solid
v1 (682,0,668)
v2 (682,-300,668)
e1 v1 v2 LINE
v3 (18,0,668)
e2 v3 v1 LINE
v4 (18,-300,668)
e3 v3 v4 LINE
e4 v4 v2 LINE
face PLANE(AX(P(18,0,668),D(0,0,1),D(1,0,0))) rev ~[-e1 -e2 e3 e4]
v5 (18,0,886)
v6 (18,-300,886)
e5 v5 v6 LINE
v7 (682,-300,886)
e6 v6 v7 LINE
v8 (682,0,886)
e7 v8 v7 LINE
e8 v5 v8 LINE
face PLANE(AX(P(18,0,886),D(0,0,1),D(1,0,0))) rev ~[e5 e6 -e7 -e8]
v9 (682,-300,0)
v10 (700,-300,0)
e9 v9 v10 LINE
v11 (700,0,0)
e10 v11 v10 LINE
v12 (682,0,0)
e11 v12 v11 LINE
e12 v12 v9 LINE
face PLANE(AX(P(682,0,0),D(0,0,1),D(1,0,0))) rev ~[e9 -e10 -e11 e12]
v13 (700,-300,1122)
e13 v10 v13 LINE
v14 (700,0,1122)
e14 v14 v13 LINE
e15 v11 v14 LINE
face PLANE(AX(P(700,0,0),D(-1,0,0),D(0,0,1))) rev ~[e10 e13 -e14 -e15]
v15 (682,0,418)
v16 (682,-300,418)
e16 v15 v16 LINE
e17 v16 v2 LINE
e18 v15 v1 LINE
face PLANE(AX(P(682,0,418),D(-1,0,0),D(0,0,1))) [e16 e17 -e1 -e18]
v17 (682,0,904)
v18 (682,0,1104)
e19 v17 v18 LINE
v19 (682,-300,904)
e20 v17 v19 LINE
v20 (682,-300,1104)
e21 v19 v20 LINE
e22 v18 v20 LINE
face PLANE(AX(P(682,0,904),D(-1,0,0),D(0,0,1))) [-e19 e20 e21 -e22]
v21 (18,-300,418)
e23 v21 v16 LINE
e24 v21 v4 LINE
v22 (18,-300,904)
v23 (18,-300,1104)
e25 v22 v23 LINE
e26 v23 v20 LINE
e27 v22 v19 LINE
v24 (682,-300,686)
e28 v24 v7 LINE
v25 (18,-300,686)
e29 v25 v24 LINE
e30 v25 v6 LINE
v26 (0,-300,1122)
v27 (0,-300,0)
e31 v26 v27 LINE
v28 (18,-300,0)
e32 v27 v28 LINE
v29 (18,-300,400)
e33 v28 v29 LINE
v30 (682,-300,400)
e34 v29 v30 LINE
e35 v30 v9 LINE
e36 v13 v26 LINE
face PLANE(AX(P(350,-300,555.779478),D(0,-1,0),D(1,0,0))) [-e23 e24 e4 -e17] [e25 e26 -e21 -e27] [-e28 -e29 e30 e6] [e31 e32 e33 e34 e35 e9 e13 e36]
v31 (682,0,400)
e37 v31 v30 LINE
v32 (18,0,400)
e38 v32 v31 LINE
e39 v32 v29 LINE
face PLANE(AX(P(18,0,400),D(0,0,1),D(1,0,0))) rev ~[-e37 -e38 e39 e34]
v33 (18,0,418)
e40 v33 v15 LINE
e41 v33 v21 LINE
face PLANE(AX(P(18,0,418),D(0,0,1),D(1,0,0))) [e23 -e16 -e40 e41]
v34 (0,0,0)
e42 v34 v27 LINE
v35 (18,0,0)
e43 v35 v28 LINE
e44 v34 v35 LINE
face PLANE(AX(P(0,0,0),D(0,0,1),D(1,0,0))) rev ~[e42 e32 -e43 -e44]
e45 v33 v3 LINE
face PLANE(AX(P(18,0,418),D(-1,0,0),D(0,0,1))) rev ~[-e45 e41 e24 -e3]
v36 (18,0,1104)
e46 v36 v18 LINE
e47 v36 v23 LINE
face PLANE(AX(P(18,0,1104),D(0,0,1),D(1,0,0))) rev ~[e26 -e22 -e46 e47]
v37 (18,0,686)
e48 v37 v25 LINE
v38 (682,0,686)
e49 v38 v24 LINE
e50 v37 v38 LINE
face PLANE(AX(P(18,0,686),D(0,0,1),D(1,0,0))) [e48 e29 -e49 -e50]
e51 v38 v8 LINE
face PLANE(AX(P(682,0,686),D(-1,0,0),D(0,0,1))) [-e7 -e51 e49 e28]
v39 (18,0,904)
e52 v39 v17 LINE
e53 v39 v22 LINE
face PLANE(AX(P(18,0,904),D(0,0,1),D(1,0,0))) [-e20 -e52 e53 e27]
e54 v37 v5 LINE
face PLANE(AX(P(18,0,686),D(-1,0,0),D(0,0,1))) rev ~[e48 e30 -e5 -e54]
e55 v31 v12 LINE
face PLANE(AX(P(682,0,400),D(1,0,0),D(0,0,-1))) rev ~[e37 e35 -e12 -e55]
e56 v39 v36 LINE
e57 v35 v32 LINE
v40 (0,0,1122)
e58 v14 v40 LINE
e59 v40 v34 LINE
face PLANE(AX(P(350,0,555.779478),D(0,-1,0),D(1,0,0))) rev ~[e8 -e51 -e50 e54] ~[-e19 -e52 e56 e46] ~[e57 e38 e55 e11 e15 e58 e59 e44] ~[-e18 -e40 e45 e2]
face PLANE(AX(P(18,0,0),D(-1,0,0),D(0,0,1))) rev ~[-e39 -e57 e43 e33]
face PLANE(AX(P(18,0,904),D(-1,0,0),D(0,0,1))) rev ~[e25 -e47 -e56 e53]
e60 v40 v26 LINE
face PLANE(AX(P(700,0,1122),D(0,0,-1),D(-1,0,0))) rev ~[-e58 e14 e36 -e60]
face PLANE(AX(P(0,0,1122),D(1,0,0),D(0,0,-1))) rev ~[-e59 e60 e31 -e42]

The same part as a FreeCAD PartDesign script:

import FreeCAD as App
import Part
import Sketcher

doc = App.newDocument("Part")
body = doc.addObject("PartDesign::Body", "Body")

sketch1 = body.newObject("Sketcher::SketchObject", "Sketch")
sketch1.AttachmentSupport = (doc.getObject("XZ_Plane"), [""])
sketch1.MapMode = "FlatFace"
sketch1.addGeometry(Part.LineSegment(App.Vector(0, 1122, 0), App.Vector(0, 0, 0)), False)
sketch1.addGeometry(Part.LineSegment(App.Vector(0, 0, 0), App.Vector(18, 0, 0)), False)
sketch1.addGeometry(Part.LineSegment(App.Vector(18, 0, 0), App.Vector(18, 400, 0)), False)
sketch1.addGeometry(Part.LineSegment(App.Vector(18, 400, 0), App.Vector(682, 400, 0)), False)
sketch1.addGeometry(Part.LineSegment(App.Vector(682, 400, 0), App.Vector(682, 0, 0)), False)
sketch1.addGeometry(Part.LineSegment(App.Vector(682, 0, 0), App.Vector(700, 0, 0)), False)
sketch1.addGeometry(Part.LineSegment(App.Vector(700, 0, 0), App.Vector(700, 1122, 0)), False)
sketch1.addGeometry(Part.LineSegment(App.Vector(700, 1122, 0), App.Vector(0, 1122, 0)), False)
sketch1.addGeometry(Part.LineSegment(App.Vector(682, 418, 0), App.Vector(18, 418, 0)), False)
sketch1.addGeometry(Part.LineSegment(App.Vector(18, 418, 0), App.Vector(18, 668, 0)), False)
sketch1.addGeometry(Part.LineSegment(App.Vector(18, 668, 0), App.Vector(682, 668, 0)), False)
sketch1.addGeometry(Part.LineSegment(App.Vector(682, 668, 0), App.Vector(682, 418, 0)), False)
sketch1.addGeometry(Part.LineSegment(App.Vector(682, 686, 0), App.Vector(18, 686, 0)), False)
sketch1.addGeometry(Part.LineSegment(App.Vector(18, 686, 0), App.Vector(18, 886, 0)), False)
sketch1.addGeometry(Part.LineSegment(App.Vector(18, 886, 0), App.Vector(682, 886, 0)), False)
sketch1.addGeometry(Part.LineSegment(App.Vector(682, 886, 0), App.Vector(682, 686, 0)), False)
sketch1.addGeometry(Part.LineSegment(App.Vector(682, 904, 0), App.Vector(18, 904, 0)), False)
sketch1.addGeometry(Part.LineSegment(App.Vector(18, 904, 0), App.Vector(18, 1104, 0)), False)
sketch1.addGeometry(Part.LineSegment(App.Vector(18, 1104, 0), App.Vector(682, 1104, 0)), False)
sketch1.addGeometry(Part.LineSegment(App.Vector(682, 1104, 0), App.Vector(682, 904, 0)), False)
sketch1.addConstraint(Sketcher.Constraint("Coincident", 0, 2, 1, 1))
sketch1.addConstraint(Sketcher.Constraint("Coincident", 1, 2, 2, 1))
sketch1.addConstraint(Sketcher.Constraint("Coincident", 2, 2, 3, 1))
sketch1.addConstraint(Sketcher.Constraint("Coincident", 3, 2, 4, 1))
sketch1.addConstraint(Sketcher.Constraint("Coincident", 4, 2, 5, 1))
sketch1.addConstraint(Sketcher.Constraint("Coincident", 5, 2, 6, 1))
sketch1.addConstraint(Sketcher.Constraint("Coincident", 6, 2, 7, 1))
sketch1.addConstraint(Sketcher.Constraint("Coincident", 7, 2, 0, 1))
sketch1.addConstraint(Sketcher.Constraint("Coincident", 8, 2, 9, 1))
sketch1.addConstraint(Sketcher.Constraint("Coincident", 9, 2, 10, 1))
sketch1.addConstraint(Sketcher.Constraint("Coincident", 10, 2, 11, 1))
sketch1.addConstraint(Sketcher.Constraint("Coincident", 11, 2, 8, 1))
sketch1.addConstraint(Sketcher.Constraint("Coincident", 12, 2, 13, 1))
sketch1.addConstraint(Sketcher.Constraint("Coincident", 13, 2, 14, 1))
sketch1.addConstraint(Sketcher.Constraint("Coincident", 14, 2, 15, 1))
sketch1.addConstraint(Sketcher.Constraint("Coincident", 15, 2, 12, 1))
sketch1.addConstraint(Sketcher.Constraint("Coincident", 16, 2, 17, 1))
sketch1.addConstraint(Sketcher.Constraint("Coincident", 17, 2, 18, 1))
sketch1.addConstraint(Sketcher.Constraint("Coincident", 18, 2, 19, 1))
sketch1.addConstraint(Sketcher.Constraint("Coincident", 19, 2, 16, 1))
sketch1.addConstraint(Sketcher.Constraint("Vertical", 0))
sketch1.addConstraint(Sketcher.Constraint("Horizontal", 1))
sketch1.addConstraint(Sketcher.Constraint("Vertical", 2))
sketch1.addConstraint(Sketcher.Constraint("Horizontal", 3))
sketch1.addConstraint(Sketcher.Constraint("Vertical", 4))
sketch1.addConstraint(Sketcher.Constraint("Horizontal", 5))
sketch1.addConstraint(Sketcher.Constraint("Vertical", 6))
sketch1.addConstraint(Sketcher.Constraint("Horizontal", 7))
sketch1.addConstraint(Sketcher.Constraint("Horizontal", 8))
sketch1.addConstraint(Sketcher.Constraint("Vertical", 9))
sketch1.addConstraint(Sketcher.Constraint("Horizontal", 10))
sketch1.addConstraint(Sketcher.Constraint("Vertical", 11))
sketch1.addConstraint(Sketcher.Constraint("Horizontal", 12))
sketch1.addConstraint(Sketcher.Constraint("Vertical", 13))
sketch1.addConstraint(Sketcher.Constraint("Horizontal", 14))
sketch1.addConstraint(Sketcher.Constraint("Vertical", 15))
sketch1.addConstraint(Sketcher.Constraint("Horizontal", 16))
sketch1.addConstraint(Sketcher.Constraint("Vertical", 17))
sketch1.addConstraint(Sketcher.Constraint("Horizontal", 18))
sketch1.addConstraint(Sketcher.Constraint("Vertical", 19))
sketch1.addConstraint(Sketcher.Constraint("Coincident", 0, 2, -1, 1))
sketch1.addConstraint(Sketcher.Constraint("PointOnObject", 4, 2, -1))
sketch1.addConstraint(Sketcher.Constraint("Vertical", 2, 2, 8, 2))
sketch1.addConstraint(Sketcher.Constraint("Vertical", 4, 2, 10, 2))
sketch1.addConstraint(Sketcher.Constraint("Vertical", 9, 2, 12, 2))
sketch1.addConstraint(Sketcher.Constraint("Vertical", 11, 2, 14, 2))
sketch1.addConstraint(Sketcher.Constraint("Vertical", 13, 2, 16, 2))
sketch1.addConstraint(Sketcher.Constraint("Vertical", 15, 2, 18, 2))
sketch1.addConstraint(Sketcher.Constraint("Equal", 1, 5))
sketch1.addConstraint(Sketcher.Constraint("Equal", 15, 17))
sketch1.addConstraint(Sketcher.Constraint("DistanceX", 1, 1, 1, 2, 18.0))
sketch1.addConstraint(Sketcher.Constraint("DistanceX", 3, 1, 3, 2, 664.0))
sketch1.addConstraint(Sketcher.Constraint("DistanceY", 0, 2, 0, 1, 1122.0))
sketch1.addConstraint(Sketcher.Constraint("DistanceY", 2, 1, 2, 2, 400.0))
sketch1.addConstraint(Sketcher.Constraint("DistanceY", 9, 1, 9, 2, 250.0))
sketch1.addConstraint(Sketcher.Constraint("DistanceY", 13, 1, 13, 2, 200.0))
sketch1.addConstraint(Sketcher.Constraint("DistanceY", -1, 1, 8, 2, 418.0))
sketch1.addConstraint(Sketcher.Constraint("DistanceY", -1, 1, 12, 2, 686.0))
sketch1.addConstraint(Sketcher.Constraint("DistanceY", -1, 1, 16, 2, 904.0))
pad1 = body.newObject("PartDesign::Pad", "Pad")
pad1.Profile = sketch1
pad1.Length = 300

doc.recompute()
